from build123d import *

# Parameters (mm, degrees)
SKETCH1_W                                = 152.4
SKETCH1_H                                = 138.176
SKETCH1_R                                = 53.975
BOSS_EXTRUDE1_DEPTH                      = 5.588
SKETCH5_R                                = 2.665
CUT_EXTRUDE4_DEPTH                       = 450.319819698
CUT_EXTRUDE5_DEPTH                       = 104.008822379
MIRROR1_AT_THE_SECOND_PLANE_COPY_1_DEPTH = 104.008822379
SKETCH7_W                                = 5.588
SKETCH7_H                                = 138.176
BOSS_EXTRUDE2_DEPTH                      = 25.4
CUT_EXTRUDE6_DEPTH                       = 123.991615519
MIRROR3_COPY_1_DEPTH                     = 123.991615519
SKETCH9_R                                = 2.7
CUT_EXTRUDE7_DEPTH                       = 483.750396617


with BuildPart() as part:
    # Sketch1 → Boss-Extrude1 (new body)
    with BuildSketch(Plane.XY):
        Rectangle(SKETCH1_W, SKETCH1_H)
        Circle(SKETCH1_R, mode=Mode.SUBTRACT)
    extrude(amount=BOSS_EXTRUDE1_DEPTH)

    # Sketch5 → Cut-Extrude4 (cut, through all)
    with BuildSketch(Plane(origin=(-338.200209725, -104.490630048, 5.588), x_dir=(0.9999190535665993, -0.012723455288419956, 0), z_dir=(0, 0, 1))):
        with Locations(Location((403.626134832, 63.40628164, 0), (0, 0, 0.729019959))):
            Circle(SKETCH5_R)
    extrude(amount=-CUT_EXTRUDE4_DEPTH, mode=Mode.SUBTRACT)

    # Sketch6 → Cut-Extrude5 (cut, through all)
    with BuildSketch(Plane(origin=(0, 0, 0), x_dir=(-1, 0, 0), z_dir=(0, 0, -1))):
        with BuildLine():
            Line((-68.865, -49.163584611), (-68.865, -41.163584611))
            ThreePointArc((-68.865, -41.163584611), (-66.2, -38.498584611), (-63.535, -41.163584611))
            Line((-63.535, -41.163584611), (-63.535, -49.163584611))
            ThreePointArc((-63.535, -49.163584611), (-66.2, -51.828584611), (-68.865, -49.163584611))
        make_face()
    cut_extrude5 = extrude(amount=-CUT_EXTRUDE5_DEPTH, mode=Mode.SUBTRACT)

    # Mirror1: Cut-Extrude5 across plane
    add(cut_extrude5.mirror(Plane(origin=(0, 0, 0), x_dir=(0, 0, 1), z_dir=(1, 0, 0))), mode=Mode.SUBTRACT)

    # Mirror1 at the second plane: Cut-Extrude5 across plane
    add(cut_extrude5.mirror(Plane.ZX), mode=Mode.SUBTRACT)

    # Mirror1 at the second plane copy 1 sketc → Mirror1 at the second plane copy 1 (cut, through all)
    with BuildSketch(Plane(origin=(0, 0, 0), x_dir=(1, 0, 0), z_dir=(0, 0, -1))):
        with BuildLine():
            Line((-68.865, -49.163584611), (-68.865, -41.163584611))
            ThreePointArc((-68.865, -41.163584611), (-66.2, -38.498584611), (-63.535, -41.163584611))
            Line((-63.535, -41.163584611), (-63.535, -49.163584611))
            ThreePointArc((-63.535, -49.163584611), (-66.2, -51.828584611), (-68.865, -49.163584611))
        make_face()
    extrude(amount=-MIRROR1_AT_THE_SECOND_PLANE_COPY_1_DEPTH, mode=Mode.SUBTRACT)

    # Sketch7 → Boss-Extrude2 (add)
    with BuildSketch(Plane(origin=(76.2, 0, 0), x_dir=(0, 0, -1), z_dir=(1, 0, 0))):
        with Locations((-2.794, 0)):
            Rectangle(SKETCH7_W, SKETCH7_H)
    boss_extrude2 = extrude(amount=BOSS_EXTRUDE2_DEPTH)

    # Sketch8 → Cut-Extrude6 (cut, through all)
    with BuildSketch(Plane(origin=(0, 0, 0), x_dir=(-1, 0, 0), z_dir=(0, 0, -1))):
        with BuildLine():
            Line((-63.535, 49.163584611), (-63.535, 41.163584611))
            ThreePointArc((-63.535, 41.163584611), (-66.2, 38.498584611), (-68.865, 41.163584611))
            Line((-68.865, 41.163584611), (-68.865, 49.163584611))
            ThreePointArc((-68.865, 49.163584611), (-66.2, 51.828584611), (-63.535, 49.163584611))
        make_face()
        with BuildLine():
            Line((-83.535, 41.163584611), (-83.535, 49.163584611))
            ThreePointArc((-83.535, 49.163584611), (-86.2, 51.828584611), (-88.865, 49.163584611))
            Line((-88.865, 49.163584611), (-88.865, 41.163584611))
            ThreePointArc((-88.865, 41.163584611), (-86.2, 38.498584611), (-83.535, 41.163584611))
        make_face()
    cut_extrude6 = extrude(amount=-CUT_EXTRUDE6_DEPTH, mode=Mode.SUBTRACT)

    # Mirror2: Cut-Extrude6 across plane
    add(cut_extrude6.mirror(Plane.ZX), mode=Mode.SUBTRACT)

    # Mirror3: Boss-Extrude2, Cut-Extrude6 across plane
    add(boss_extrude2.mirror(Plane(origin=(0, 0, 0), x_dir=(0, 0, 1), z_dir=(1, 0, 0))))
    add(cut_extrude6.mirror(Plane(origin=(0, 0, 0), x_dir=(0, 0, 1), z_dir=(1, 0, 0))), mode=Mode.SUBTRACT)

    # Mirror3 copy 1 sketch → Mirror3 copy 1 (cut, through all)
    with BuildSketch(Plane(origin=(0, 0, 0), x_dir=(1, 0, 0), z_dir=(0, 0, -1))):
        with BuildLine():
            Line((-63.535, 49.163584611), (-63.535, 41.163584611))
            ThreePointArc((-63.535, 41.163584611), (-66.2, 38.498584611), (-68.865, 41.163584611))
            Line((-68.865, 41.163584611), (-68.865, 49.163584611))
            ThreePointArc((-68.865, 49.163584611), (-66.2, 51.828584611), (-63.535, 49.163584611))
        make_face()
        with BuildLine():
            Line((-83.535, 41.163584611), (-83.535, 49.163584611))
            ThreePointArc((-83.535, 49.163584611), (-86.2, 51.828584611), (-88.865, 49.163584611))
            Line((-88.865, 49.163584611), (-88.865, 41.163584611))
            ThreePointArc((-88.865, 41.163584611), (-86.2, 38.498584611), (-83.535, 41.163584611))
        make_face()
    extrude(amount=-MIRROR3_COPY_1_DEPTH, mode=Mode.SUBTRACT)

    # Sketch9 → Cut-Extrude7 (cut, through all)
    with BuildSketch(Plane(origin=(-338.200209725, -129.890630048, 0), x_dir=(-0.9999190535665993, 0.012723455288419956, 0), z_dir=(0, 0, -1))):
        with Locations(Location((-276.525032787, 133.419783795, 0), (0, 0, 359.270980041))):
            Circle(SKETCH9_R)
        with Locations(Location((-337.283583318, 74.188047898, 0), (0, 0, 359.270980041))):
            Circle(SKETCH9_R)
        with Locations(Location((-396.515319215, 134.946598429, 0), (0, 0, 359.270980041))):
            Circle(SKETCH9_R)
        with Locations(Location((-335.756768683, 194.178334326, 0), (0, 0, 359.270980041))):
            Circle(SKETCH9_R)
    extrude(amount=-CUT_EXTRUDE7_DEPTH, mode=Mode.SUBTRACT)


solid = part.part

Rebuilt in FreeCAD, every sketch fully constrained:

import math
import FreeCAD as App
import Part
import Sketcher
Q = App.Units.Quantity


def add_polygon(sketch, points):
    """Adds a closed chain of lines whose ends are joined by coincident constraints."""
    first, n = sketch.GeometryCount, len(points)
    for a, b in zip(points, points[1:] + points[:1]):
        sketch.addGeometry(Part.LineSegment(App.Vector(*a, 0), App.Vector(*b, 0)), False)
    for i in range(n):
        sketch.addConstraint(Sketcher.Constraint("Coincident", first + i, 2, first + (i + 1) % n, 1))

doc = App.newDocument("Part")
body = doc.addObject("PartDesign::Body", "Body")

sketch1 = doc.addObject("Sketcher::SketchObject", "Sketch")
body.addObject(sketch1)
sketch1.AttachmentSupport = (doc.XY_Plane, [""])
sketch1.MapMode = "FlatFace"
add_polygon(sketch1, [(-76, 69), (-76, -69), (76, -69), (76, 69)])
sketch1.addGeometry(Part.Circle(App.Vector(0, 0, 0), App.Vector(0, 0, 1), 54), False)
sketch1.addConstraint(Sketcher.Constraint("Vertical", 0))
sketch1.addConstraint(Sketcher.Constraint("Horizontal", 1))
sketch1.addConstraint(Sketcher.Constraint("Vertical", 2))
sketch1.addConstraint(Sketcher.Constraint("Horizontal", 3))
sketch1.addConstraint(Sketcher.Constraint("Coincident", 4, 3, -1, 1))
sketch1.addConstraint(Sketcher.Constraint("Symmetric", 0, 2, 2, 2, -1, 1))
sketch1.addConstraint(Sketcher.Constraint("Diameter", 4, Q("4.25 in")))
sketch1.addConstraint(Sketcher.Constraint("DistanceX", 1, 1, 1, 2, Q("6 in")))
sketch1.addConstraint(Sketcher.Constraint("DistanceY", 0, 2, 0, 1, Q("5.44 in")))
pad1 = doc.addObject("PartDesign::Pad", "Pad")
body.addObject(pad1)
pad1.Profile = sketch1
pad1.Length = Q("0.22 in")

sketch2 = doc.addObject("Sketcher::SketchObject", "Sketch001")
body.addObject(sketch2)
sketch2.AttachmentSupport = (doc.XY_Plane, [""])
sketch2.MapMode = "FlatFace"
sketch2.AttachmentOffset = App.Placement(App.Vector(0, 0, 0.22 * 25.4), App.Rotation())
sketch2.addGeometry(Part.Circle(App.Vector(66.2, -46.2, 0), App.Vector(0, 0, 1), 2.7), False)
sketch2.addConstraint(Sketcher.Constraint("Diameter", 0, 5.33))
sketch2.addConstraint(Sketcher.Constraint("DistanceX", -1, 1, 0, 3, 66.2))
sketch2.addConstraint(Sketcher.Constraint("DistanceY", 0, 3, -1, 1, 46.225))
pocket1 = doc.addObject("PartDesign::Pocket", "Pocket")
body.addObject(pocket1)
pocket1.Profile = sketch2
pocket1.Type = "ThroughAll"

sketch3 = doc.addObject("Sketcher::SketchObject", "Sketch002")
body.addObject(sketch3)
sketch3.AttachmentSupport = (doc.XY_Plane, [""])
sketch3.MapMode = "FlatFace"
sketch3.addGeometry(Part.LineSegment(App.Vector(68.9, -41.2, 0), App.Vector(68.9, -49.2, 0)), False)
sketch3.addGeometry(Part.ArcOfCircle(Part.Circle(App.Vector(66.2, -49.2, 0), App.Vector(0, 0, 1), 2.7), math.radians(180), math.radians(360)), False)
sketch3.addGeometry(Part.LineSegment(App.Vector(63.5, -49.2, 0), App.Vector(63.5, -41.2, 0)), False)
sketch3.addGeometry(Part.ArcOfCircle(Part.Circle(App.Vector(66.2, -41.2, 0), App.Vector(0, 0, 1), 2.7), math.radians(0), math.radians(180)), False)
sketch3.addConstraint(Sketcher.Constraint("Tangent", 0, 2, 1, 2))
sketch3.addConstraint(Sketcher.Constraint("Tangent", 1, 1, 2, 1))
sketch3.addConstraint(Sketcher.Constraint("Tangent", 2, 2, 3, 2))
sketch3.addConstraint(Sketcher.Constraint("Tangent", 3, 1, 0, 1))
sketch3.addConstraint(Sketcher.Constraint("Vertical", 0))
sketch3.addConstraint(Sketcher.Constraint("Vertical", 2))
sketch3.addConstraint(Sketcher.Constraint("Radius", 1, 2.665))
sketch3.addConstraint(Sketcher.Constraint("DistanceY", 0, 2, 0, 1, 8.0))
sketch3.addConstraint(Sketcher.Constraint("DistanceX", -1, 1, 1, 3, 66.2))
sketch3.addConstraint(Sketcher.Constraint("DistanceY", 1, 3, -1, 1, 49.163585))
pocket2 = doc.addObject("PartDesign::Pocket", "Pocket001")
body.addObject(pocket2)
pocket2.Profile = sketch3
pocket2.Type = "ThroughAll"
pocket2.Reversed = True
doc.recompute()

mirrored = doc.addObject("PartDesign::Mirrored", "Mirrored")
body.addObject(mirrored)
mirrored.Originals = [pocket2]
mirrored.MirrorPlane = (doc.YZ_Plane, [""])
body.Tip = mirrored
doc.recompute()

mirrored2 = doc.addObject("PartDesign::Mirrored", "Mirrored001")
body.addObject(mirrored2)
mirrored2.Originals = [pocket2]
mirrored2.MirrorPlane = (doc.XZ_Plane, [""])
body.Tip = mirrored2

sketch4 = doc.addObject("Sketcher::SketchObject", "Sketch003")
body.addObject(sketch4)
sketch4.AttachmentSupport = (doc.XY_Plane, [""])
sketch4.MapMode = "FlatFace"
sketch4.addGeometry(Part.LineSegment(App.Vector(-68.9, 41.2, 0), App.Vector(-68.9, 49.2, 0)), False)
sketch4.addGeometry(Part.ArcOfCircle(Part.Circle(App.Vector(-66.2, 49.2, 0), App.Vector(0, 0, 1), 2.7), math.radians(0), math.radians(180)), False)
sketch4.addGeometry(Part.LineSegment(App.Vector(-63.5, 49.2, 0), App.Vector(-63.5, 41.2, 0)), False)
sketch4.addGeometry(Part.ArcOfCircle(Part.Circle(App.Vector(-66.2, 41.2, 0), App.Vector(0, 0, 1), 2.7), math.radians(180), math.radians(360)), False)
sketch4.addConstraint(Sketcher.Constraint("Tangent", 0, 2, 1, 2))
sketch4.addConstraint(Sketcher.Constraint("Tangent", 1, 1, 2, 1))
sketch4.addConstraint(Sketcher.Constraint("Tangent", 2, 2, 3, 2))
sketch4.addConstraint(Sketcher.Constraint("Tangent", 3, 1, 0, 1))
sketch4.addConstraint(Sketcher.Constraint("Vertical", 0))
sketch4.addConstraint(Sketcher.Constraint("Vertical", 2))
sketch4.addConstraint(Sketcher.Constraint("Radius", 1, 2.665))
sketch4.addConstraint(Sketcher.Constraint("DistanceY", 0, 1, 0, 2, 8.0))
sketch4.addConstraint(Sketcher.Constraint("DistanceX", 1, 3, -1, 1, 66.2))
sketch4.addConstraint(Sketcher.Constraint("DistanceY", -1, 1, 1, 3, 49.163585))
pocket3 = doc.addObject("PartDesign::Pocket", "Pocket002")
body.addObject(pocket3)
pocket3.Profile = sketch4
pocket3.Type = "ThroughAll"
pocket3.Reversed = True

sketch5 = doc.addObject("Sketcher::SketchObject", "Sketch004")
body.addObject(sketch5)
sketch5.AttachmentSupport = (doc.YZ_Plane, [""])
sketch5.MapMode = "FlatFace"
sketch5.AttachmentOffset = App.Placement(App.Vector(0, 0, 3 * 25.4), App.Rotation())
add_polygon(sketch5, [(69, 6), (-69, 6), (-69, 0), (69, 0)])
sketch5.addConstraint(Sketcher.Constraint("Horizontal", 0))
sketch5.addConstraint(Sketcher.Constraint("Vertical", 1))
sketch5.addConstraint(Sketcher.Constraint("Horizontal", 2))
sketch5.addConstraint(Sketcher.Constraint("Vertical", 3))
sketch5.addConstraint(Sketcher.Constraint("Symmetric", 1, 2, 2, 2, -1, 1))
sketch5.addConstraint(Sketcher.Constraint("DistanceX", 0, 2, 0, 1, Q("5.44 in")))
sketch5.addConstraint(Sketcher.Constraint("DistanceY", 1, 2, 1, 1, Q("0.22 in")))
pad2 = doc.addObject("PartDesign::Pad", "Pad001")
body.addObject(pad2)
pad2.Profile = sketch5
pad2.Length = Q("1 in")

sketch6 = doc.addObject("Sketcher::SketchObject", "Sketch005")
body.addObject(sketch6)
sketch6.AttachmentSupport = (doc.XY_Plane, [""])
sketch6.MapMode = "FlatFace"
sketch6.addGeometry(Part.LineSegment(App.Vector(63.5, 41.2, 0), App.Vector(63.5, 49.2, 0)), False)
sketch6.addGeometry(Part.ArcOfCircle(Part.Circle(App.Vector(66.2, 49.2, 0), App.Vector(0, 0, 1), 2.7), math.radians(0), math.radians(180)), False)
sketch6.addGeometry(Part.LineSegment(App.Vector(68.9, 49.2, 0), App.Vector(68.9, 41.2, 0)), False)
sketch6.addGeometry(Part.ArcOfCircle(Part.Circle(App.Vector(66.2, 41.2, 0), App.Vector(0, 0, 1), 2.7), math.radians(180), math.radians(360)), False)
sketch6.addGeometry(Part.LineSegment(App.Vector(83.5, 41.2, 0), App.Vector(83.5, 49.2, 0)), False)
sketch6.addGeometry(Part.ArcOfCircle(Part.Circle(App.Vector(86.2, 49.2, 0), App.Vector(0, 0, 1), 2.7), math.radians(0), math.radians(180)), False)
sketch6.addGeometry(Part.LineSegment(App.Vector(88.9, 49.2, 0), App.Vector(88.9, 41.2, 0)), False)
sketch6.addGeometry(Part.ArcOfCircle(Part.Circle(App.Vector(86.2, 41.2, 0), App.Vector(0, 0, 1), 2.7), math.radians(180), math.radians(360)), False)
sketch6.addConstraint(Sketcher.Constraint("Tangent", 0, 2, 1, 2))
sketch6.addConstraint(Sketcher.Constraint("Tangent", 1, 1, 2, 1))
sketch6.addConstraint(Sketcher.Constraint("Tangent", 2, 2, 3, 2))
sketch6.addConstraint(Sketcher.Constraint("Tangent", 3, 1, 0, 1))
sketch6.addConstraint(Sketcher.Constraint("Tangent", 4, 2, 5, 2))
sketch6.addConstraint(Sketcher.Constraint("Tangent", 5, 1, 6, 1))
sketch6.addConstraint(Sketcher.Constraint("Tangent", 6, 2, 7, 2))
sketch6.addConstraint(Sketcher.Constraint("Tangent", 7, 1, 4, 1))
sketch6.addConstraint(Sketcher.Constraint("Vertical", 0))
sketch6.addConstraint(Sketcher.Constraint("Vertical", 2))
sketch6.addConstraint(Sketcher.Constraint("Vertical", 4))
sketch6.addConstraint(Sketcher.Constraint("Vertical", 6))
sketch6.addConstraint(Sketcher.Constraint("Equal", 3, 5))
sketch6.addConstraint(Sketcher.Constraint("Horizontal", 1, 3, 5, 3))
sketch6.addConstraint(Sketcher.Constraint("Horizontal", 3, 3, 7, 3))
sketch6.addConstraint(Sketcher.Constraint("Radius", 1, 2.665))
sketch6.addConstraint(Sketcher.Constraint("DistanceY", 0, 1, 0, 2, 8.0))
sketch6.addConstraint(Sketcher.Constraint("DistanceX", -1, 1, 1, 3, 66.2))
sketch6.addConstraint(Sketcher.Constraint("DistanceX", -1, 1, 5, 3, 86.2))
sketch6.addConstraint(Sketcher.Constraint("DistanceY", -1, 1, 1, 3, 49.163585))
pocket4 = doc.addObject("PartDesign::Pocket", "Pocket003")
body.addObject(pocket4)
pocket4.Profile = sketch6
pocket4.Type = "ThroughAll"
pocket4.Reversed = True
doc.recompute()

mirrored3 = doc.addObject("PartDesign::Mirrored", "Mirrored002")
body.addObject(mirrored3)
mirrored3.Originals = [pocket4]
mirrored3.MirrorPlane = (doc.XZ_Plane, [""])
body.Tip = mirrored3
doc.recompute()

mirrored4 = doc.addObject("PartDesign::Mirrored", "Mirrored003")
body.addObject(mirrored4)
mirrored4.Originals = [pad2, pocket4]
mirrored4.MirrorPlane = (doc.YZ_Plane, [""])
body.Tip = mirrored4

sketch7 = doc.addObject("Sketcher::SketchObject", "Sketch006")
body.addObject(sketch7)
sketch7.AttachmentSupport = (doc.XY_Plane, [""])
sketch7.MapMode = "FlatFace"
sketch7.addGeometry(Part.LineSegment(App.Vector(-63.5, -41.2, 0), App.Vector(-63.5, -49.2, 0)), False)
sketch7.addGeometry(Part.ArcOfCircle(Part.Circle(App.Vector(-66.2, -49.2, 0), App.Vector(0, 0, 1), 2.7), math.radians(180), math.radians(360)), False)
sketch7.addGeometry(Part.LineSegment(App.Vector(-68.9, -49.2, 0), App.Vector(-68.9, -41.2, 0)), False)
sketch7.addGeometry(Part.ArcOfCircle(Part.Circle(App.Vector(-66.2, -41.2, 0), App.Vector(0, 0, 1), 2.7), math.radians(0), math.radians(180)), False)
sketch7.addGeometry(Part.LineSegment(App.Vector(-83.5, -41.2, 0), App.Vector(-83.5, -49.2, 0)), False)
sketch7.addGeometry(Part.ArcOfCircle(Part.Circle(App.Vector(-86.2, -49.2, 0), App.Vector(0, 0, 1), 2.7), math.radians(180), math.radians(360)), False)
sketch7.addGeometry(Part.LineSegment(App.Vector(-88.9, -49.2, 0), App.Vector(-88.9, -41.2, 0)), False)
sketch7.addGeometry(Part.ArcOfCircle(Part.Circle(App.Vector(-86.2, -41.2, 0), App.Vector(0, 0, 1), 2.7), math.radians(0), math.radians(180)), False)
sketch7.addConstraint(Sketcher.Constraint("Tangent", 0, 2, 1, 2))
sketch7.addConstraint(Sketcher.Constraint("Tangent", 1, 1, 2, 1))
sketch7.addConstraint(Sketcher.Constraint("Tangent", 2, 2, 3, 2))
sketch7.addConstraint(Sketcher.Constraint("Tangent", 3, 1, 0, 1))
sketch7.addConstraint(Sketcher.Constraint("Tangent", 4, 2, 5, 2))
sketch7.addConstraint(Sketcher.Constraint("Tangent", 5, 1, 6, 1))
sketch7.addConstraint(Sketcher.Constraint("Tangent", 6, 2, 7, 2))
sketch7.addConstraint(Sketcher.Constraint("Tangent", 7, 1, 4, 1))
sketch7.addConstraint(Sketcher.Constraint("Vertical", 0))
sketch7.addConstraint(Sketcher.Constraint("Vertical", 2))
sketch7.addConstraint(Sketcher.Constraint("Vertical", 4))
sketch7.addConstraint(Sketcher.Constraint("Vertical", 6))
sketch7.addConstraint(Sketcher.Constraint("Equal", 3, 5))
sketch7.addConstraint(Sketcher.Constraint("Horizontal", 1, 3, 5, 3))
sketch7.addConstraint(Sketcher.Constraint("Horizontal", 3, 3, 7, 3))
sketch7.addConstraint(Sketcher.Constraint("Radius", 1, 2.665))
sketch7.addConstraint(Sketcher.Constraint("DistanceY", 0, 2, 0, 1, 8.0))
sketch7.addConstraint(Sketcher.Constraint("DistanceX", 1, 3, -1, 1, 66.2))
sketch7.addConstraint(Sketcher.Constraint("DistanceX", 5, 3, -1, 1, 86.2))
sketch7.addConstraint(Sketcher.Constraint("DistanceY", 1, 3, -1, 1, 49.163585))
pocket5 = doc.addObject("PartDesign::Pocket", "Pocket004")
body.addObject(pocket5)
pocket5.Profile = sketch7
pocket5.Type = "ThroughAll"
pocket5.Reversed = True

sketch8 = doc.addObject("Sketcher::SketchObject", "Sketch007")
body.addObject(sketch8)
sketch8.AttachmentSupport = (doc.XY_Plane, [""])
sketch8.MapMode = "FlatFace"
sketch8.addGeometry(Part.Circle(App.Vector(-60, 0, 0), App.Vector(0, 0, 1), 2.7), False)
sketch8.addGeometry(Part.Circle(App.Vector(0, -60, 0), App.Vector(0, 0, 1), 2.7), False)
sketch8.addGeometry(Part.Circle(App.Vector(60, 0, 0), App.Vector(0, 0, 1), 2.7), False)
sketch8.addGeometry(Part.Circle(App.Vector(0, 60, 0), App.Vector(0, 0, 1), 2.7), False)
sketch8.addConstraint(Sketcher.Constraint("Equal", 0, 1))
sketch8.addConstraint(Sketcher.Constraint("Equal", 1, 2))
sketch8.addConstraint(Sketcher.Constraint("Equal", 2, 3))
sketch8.addConstraint(Sketcher.Constraint("Symmetric", 0, 3, 2, 3, -1, 1))
sketch8.addConstraint(Sketcher.Constraint("Symmetric", 1, 3, 3, 3, -1, 1))
sketch8.addConstraint(Sketcher.Constraint("PointOnObject", 0, 3, -1))
sketch8.addConstraint(Sketcher.Constraint("PointOnObject", 1, 3, -2))
sketch8.addConstraint(Sketcher.Constraint("Diameter", 0, 5.4))
sketch8.addConstraint(Sketcher.Constraint("DistanceX", 0, 3, -1, 1, 60.0))
sketch8.addConstraint(Sketcher.Constraint("DistanceY", 1, 3, -1, 1, 60.0))
pocket6 = doc.addObject("PartDesign::Pocket", "Pocket005")
body.addObject(pocket6)
pocket6.Profile = sketch8
pocket6.Type = "ThroughAll"
pocket6.Reversed = True

doc.recompute()
